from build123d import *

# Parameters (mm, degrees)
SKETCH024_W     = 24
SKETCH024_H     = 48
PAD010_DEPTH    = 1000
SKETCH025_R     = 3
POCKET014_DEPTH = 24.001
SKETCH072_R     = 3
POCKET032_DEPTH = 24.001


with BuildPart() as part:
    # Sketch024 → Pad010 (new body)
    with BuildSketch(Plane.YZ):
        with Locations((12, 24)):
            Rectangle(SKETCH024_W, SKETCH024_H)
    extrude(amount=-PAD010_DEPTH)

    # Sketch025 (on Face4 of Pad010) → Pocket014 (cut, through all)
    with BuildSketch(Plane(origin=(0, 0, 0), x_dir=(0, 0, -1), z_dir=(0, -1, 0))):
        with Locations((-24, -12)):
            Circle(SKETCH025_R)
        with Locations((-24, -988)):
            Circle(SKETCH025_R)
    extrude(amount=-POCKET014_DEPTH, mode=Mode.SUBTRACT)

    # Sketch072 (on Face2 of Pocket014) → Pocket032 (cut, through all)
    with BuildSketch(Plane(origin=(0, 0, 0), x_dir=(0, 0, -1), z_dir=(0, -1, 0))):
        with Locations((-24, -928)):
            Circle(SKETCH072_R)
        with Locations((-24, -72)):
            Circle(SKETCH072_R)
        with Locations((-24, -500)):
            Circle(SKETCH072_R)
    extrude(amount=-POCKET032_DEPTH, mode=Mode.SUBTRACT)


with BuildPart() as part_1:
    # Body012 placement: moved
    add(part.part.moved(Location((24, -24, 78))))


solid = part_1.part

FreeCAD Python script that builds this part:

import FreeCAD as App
import Part
import Sketcher
Q = App.Units.Quantity


def add_polygon(sketch, points):
    """Adds a closed chain of lines whose ends are joined by coincident constraints."""
    first, n = sketch.GeometryCount, len(points)
    for a, b in zip(points, points[1:] + points[:1]):
        sketch.addGeometry(Part.LineSegment(App.Vector(*a, 0), App.Vector(*b, 0)), False)
    for i in range(n):
        sketch.addConstraint(Sketcher.Constraint("Coincident", first + i, 2, first + (i + 1) % n, 1))

doc = App.newDocument("Part")
body = doc.addObject("PartDesign::Body", "Body")

sketch1 = body.newObject("Sketcher::SketchObject", "Sketch")
sketch1.AttachmentSupport = (doc.getObject("YZ_Plane"), [""])
sketch1.MapMode = "FlatFace"
add_polygon(sketch1, [(0, 48), (0, 0), (24, 0), (24, 48)])
sketch1.addConstraint(Sketcher.Constraint("Vertical", 0))
sketch1.addConstraint(Sketcher.Constraint("Horizontal", 1))
sketch1.addConstraint(Sketcher.Constraint("Vertical", 2))
sketch1.addConstraint(Sketcher.Constraint("Horizontal", 3))
sketch1.addConstraint(Sketcher.Constraint("Coincident", 0, 2, -1, 1))
sketch1.addConstraint(Sketcher.Constraint("DistanceX", 1, 1, 1, 2, Q("24 mm")))
sketch1.addConstraint(Sketcher.Constraint("DistanceY", 0, 2, 0, 1, Q("48 mm")))
pad1 = body.newObject("PartDesign::Pad", "Pad")
pad1.Profile = sketch1
pad1.Length = 1000
pad1.Reversed = True

sketch2 = body.newObject("Sketcher::SketchObject", "Sketch001")
sketch2.AttachmentSupport = (doc.getObject("XZ_Plane"), [""])
sketch2.MapMode = "FlatFace"
sketch2.addGeometry(Part.Circle(App.Vector(-12, 24, 0), App.Vector(0, 0, 1), 3), False)
sketch2.addGeometry(Part.Circle(App.Vector(-988, 24, 0), App.Vector(0, 0, 1), 3), False)
sketch2.addConstraint(Sketcher.Constraint("Equal", 0, 1))
sketch2.addConstraint(Sketcher.Constraint("Horizontal", 0, 3, 1, 3))
sketch2.addConstraint(Sketcher.Constraint("Diameter", 0, Q("6 mm")))
sketch2.addConstraint(Sketcher.Constraint("DistanceX", 0, 3, -1, 1, Q("12 mm")))
sketch2.addConstraint(Sketcher.Constraint("DistanceY", -1, 1, 0, 3, Q("24 mm")))
sketch2.addConstraint(Sketcher.Constraint("DistanceX", 1, 3, -1, 1, Q("988 mm")))
pocket1 = body.newObject("PartDesign::Pocket", "Pocket")
pocket1.Profile = sketch2
pocket1.Type = "ThroughAll"

sketch3 = body.newObject("Sketcher::SketchObject", "Sketch002")
sketch3.AttachmentSupport = (doc.getObject("XZ_Plane"), [""])
sketch3.MapMode = "FlatFace"
sketch3.addGeometry(Part.Circle(App.Vector(-928, 24, 0), App.Vector(0, 0, 1), 3), False)
sketch3.addGeometry(Part.Circle(App.Vector(-72, 24, 0), App.Vector(0, 0, 1), 3), False)
sketch3.addGeometry(Part.Circle(App.Vector(-500, 24, 0), App.Vector(0, 0, 1), 3), False)
sketch3.addConstraint(Sketcher.Constraint("Equal", 0, 1))
sketch3.addConstraint(Sketcher.Constraint("Equal", 1, 2))
sketch3.addConstraint(Sketcher.Constraint("Horizontal", 0, 3, 1, 3))
sketch3.addConstraint(Sketcher.Constraint("Horizontal", 1, 3, 2, 3))
sketch3.addConstraint(Sketcher.Constraint("Diameter", 0, Q("6 mm")))
sketch3.addConstraint(Sketcher.Constraint("DistanceX", 0, 3, -1, 1, Q("928 mm")))
sketch3.addConstraint(Sketcher.Constraint("DistanceY", -1, 1, 0, 3, Q("24 mm")))
sketch3.addConstraint(Sketcher.Constraint("DistanceX", 1, 3, -1, 1, Q("72 mm")))
sketch3.addConstraint(Sketcher.Constraint("DistanceX", 2, 3, -1, 1, Q("500 mm")))
pocket2 = body.newObject("PartDesign::Pocket", "Pocket001")
pocket2.Profile = sketch3
pocket2.Type = "ThroughAll"
body2 = doc.addObject("PartDesign::Body", "Body001")
doc.recompute()

body.Placement = App.Placement(App.Vector(24, -24, 78), App.Rotation(App.Vector(0, 0, 1), 0))
boolean = body2.newObject("PartDesign::Boolean", "Boolean")
boolean.Type = "Fuse"
boolean.addObjects([body])

doc.recompute()
